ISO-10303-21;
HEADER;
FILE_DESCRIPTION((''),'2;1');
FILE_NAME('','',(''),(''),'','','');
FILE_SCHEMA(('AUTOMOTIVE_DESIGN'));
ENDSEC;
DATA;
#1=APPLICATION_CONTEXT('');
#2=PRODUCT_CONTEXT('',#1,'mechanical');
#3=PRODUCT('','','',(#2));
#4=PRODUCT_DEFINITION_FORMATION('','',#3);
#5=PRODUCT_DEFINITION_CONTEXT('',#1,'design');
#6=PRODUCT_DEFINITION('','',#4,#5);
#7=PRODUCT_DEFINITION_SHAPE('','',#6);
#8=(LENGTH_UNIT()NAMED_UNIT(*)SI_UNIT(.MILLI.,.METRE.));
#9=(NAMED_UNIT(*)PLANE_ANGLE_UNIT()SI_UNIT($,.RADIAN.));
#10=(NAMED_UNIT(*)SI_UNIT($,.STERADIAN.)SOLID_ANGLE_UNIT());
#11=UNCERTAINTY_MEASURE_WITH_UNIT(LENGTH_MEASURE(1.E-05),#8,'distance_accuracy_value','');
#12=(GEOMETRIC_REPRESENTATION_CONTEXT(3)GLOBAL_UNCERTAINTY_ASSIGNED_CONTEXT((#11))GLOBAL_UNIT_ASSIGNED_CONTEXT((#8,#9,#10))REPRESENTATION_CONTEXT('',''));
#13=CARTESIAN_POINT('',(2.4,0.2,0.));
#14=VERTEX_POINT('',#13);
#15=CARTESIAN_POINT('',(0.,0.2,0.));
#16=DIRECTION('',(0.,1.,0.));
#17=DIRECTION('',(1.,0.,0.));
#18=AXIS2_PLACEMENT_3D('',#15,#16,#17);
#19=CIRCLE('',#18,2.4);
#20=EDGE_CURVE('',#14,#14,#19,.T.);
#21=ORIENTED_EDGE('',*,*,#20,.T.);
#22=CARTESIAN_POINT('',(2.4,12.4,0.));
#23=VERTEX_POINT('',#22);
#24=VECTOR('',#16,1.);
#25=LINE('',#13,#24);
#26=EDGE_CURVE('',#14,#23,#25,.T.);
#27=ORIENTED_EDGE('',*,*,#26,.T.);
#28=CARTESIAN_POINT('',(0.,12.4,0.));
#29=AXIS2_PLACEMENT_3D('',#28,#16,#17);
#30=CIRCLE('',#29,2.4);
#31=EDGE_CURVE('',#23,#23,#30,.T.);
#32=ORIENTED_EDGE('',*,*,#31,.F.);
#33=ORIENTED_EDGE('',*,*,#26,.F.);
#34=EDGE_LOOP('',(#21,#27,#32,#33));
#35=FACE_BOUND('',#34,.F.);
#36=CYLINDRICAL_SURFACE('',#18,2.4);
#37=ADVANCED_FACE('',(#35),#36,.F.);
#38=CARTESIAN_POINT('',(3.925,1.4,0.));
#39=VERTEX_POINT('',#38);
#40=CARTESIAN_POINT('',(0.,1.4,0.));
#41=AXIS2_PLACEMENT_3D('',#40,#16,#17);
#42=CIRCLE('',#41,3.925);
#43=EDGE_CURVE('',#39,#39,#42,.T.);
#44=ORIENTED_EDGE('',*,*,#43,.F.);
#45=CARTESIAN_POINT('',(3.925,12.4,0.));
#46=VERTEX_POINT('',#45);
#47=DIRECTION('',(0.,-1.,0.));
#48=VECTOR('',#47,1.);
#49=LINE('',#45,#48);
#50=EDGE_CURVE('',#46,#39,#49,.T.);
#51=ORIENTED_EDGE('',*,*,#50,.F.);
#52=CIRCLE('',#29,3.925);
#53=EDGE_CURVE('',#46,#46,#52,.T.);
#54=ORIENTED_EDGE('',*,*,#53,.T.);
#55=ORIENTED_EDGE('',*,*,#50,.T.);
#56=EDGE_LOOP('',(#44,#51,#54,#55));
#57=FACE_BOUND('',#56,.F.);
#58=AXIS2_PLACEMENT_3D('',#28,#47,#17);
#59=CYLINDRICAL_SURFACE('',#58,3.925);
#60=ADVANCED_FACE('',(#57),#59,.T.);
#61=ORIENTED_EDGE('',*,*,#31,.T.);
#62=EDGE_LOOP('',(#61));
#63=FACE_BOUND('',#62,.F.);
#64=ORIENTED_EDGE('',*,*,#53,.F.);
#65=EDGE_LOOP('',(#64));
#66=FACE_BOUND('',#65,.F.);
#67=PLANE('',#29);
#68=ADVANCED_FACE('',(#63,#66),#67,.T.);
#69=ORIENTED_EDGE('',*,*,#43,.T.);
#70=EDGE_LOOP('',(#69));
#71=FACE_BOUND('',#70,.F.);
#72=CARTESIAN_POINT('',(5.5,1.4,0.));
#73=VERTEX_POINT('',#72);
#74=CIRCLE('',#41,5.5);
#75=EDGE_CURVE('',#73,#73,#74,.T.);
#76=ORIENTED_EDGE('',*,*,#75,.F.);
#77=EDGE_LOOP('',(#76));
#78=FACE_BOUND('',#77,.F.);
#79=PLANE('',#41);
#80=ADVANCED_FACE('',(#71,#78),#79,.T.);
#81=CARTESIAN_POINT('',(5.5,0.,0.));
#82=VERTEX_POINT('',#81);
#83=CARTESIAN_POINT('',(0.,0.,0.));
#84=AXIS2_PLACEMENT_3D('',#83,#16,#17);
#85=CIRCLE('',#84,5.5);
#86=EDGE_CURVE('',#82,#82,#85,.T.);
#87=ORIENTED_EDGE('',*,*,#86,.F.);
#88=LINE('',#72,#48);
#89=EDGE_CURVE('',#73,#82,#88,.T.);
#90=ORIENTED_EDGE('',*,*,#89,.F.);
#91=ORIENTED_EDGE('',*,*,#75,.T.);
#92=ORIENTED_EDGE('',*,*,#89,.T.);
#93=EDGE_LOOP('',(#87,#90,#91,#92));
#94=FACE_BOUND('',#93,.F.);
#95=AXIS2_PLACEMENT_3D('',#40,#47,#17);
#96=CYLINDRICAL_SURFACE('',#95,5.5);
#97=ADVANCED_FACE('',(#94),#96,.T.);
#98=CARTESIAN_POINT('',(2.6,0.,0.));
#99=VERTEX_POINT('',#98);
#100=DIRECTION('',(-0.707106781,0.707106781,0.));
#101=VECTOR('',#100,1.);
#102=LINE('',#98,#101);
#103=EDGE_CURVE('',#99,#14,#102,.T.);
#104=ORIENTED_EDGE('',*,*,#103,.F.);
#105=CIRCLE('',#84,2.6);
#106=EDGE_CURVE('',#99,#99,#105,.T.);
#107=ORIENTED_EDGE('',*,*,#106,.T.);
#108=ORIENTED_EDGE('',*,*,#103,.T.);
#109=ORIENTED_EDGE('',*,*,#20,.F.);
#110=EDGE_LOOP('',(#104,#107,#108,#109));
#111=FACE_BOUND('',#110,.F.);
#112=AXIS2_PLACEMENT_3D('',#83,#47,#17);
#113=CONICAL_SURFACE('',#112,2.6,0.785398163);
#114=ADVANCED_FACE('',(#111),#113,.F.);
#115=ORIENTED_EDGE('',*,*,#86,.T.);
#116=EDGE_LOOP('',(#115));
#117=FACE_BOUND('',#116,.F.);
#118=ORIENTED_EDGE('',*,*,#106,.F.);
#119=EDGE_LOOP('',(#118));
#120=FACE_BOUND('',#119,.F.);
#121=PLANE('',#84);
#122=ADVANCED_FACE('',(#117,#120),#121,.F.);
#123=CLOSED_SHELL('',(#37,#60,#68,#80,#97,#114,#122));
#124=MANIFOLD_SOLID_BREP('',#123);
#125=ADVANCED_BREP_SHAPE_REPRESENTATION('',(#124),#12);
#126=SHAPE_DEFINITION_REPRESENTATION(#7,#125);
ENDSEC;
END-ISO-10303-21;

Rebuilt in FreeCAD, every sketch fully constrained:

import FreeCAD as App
import Part
import Sketcher
Q = App.Units.Quantity


def add_polygon(sketch, points):
    """Adds a closed chain of lines whose ends are joined by coincident constraints."""
    first, n = sketch.GeometryCount, len(points)
    for a, b in zip(points, points[1:] + points[:1]):
        sketch.addGeometry(Part.LineSegment(App.Vector(*a, 0), App.Vector(*b, 0)), False)
    for i in range(n):
        sketch.addConstraint(Sketcher.Constraint("Coincident", first + i, 2, first + (i + 1) % n, 1))

doc = App.newDocument("Part")
body = doc.addObject("PartDesign::Body", "Body")

sketch1 = doc.addObject("Sketcher::SketchObject", "Sketch")
body.addObject(sketch1)
sketch1.AttachmentSupport = (doc.XY_Plane, [""])
sketch1.MapMode = "FlatFace"
add_polygon(sketch1, [(5.5, 0), (2.6, 0), (2.4, 0.2), (2.4, 12.4), (3.92, 12.4), (3.92, 1.4), (5.5, 1.4)])
sketch1.addConstraint([
    Sketcher.Constraint("Horizontal", 0),
    Sketcher.Constraint("Vertical", 2),
    Sketcher.Constraint("Horizontal", 3),
    Sketcher.Constraint("Vertical", 4),
    Sketcher.Constraint("Horizontal", 5),
    Sketcher.Constraint("Vertical", 6),
    Sketcher.Constraint("PointOnObject", 0, 2, -1),
    Sketcher.Constraint("DistanceY", 4, 2, 4, 1, 11.0),
    Sketcher.Constraint("Angle", 1, Q("135 deg")),
    Sketcher.Constraint("DistanceX", 0, 2, 0, 1, 2.9),
    Sketcher.Constraint("DistanceY", 2, 1, 2, 2, 12.2),
    Sketcher.Constraint("DistanceY", 6, 2, 6, 1, 1.4),
    Sketcher.Constraint("DistanceX", -1, 1, 0, 2, 2.6),
    Sketcher.Constraint("DistanceX", 3, 1, 3, 2, 1.525),
])
revolution = doc.addObject("PartDesign::Revolution", "Revolution")
body.addObject(revolution)
revolution.Profile = sketch1
revolution.ReferenceAxis = (sketch1, ["V_Axis"])
revolution.Angle = 360

doc.recompute()
